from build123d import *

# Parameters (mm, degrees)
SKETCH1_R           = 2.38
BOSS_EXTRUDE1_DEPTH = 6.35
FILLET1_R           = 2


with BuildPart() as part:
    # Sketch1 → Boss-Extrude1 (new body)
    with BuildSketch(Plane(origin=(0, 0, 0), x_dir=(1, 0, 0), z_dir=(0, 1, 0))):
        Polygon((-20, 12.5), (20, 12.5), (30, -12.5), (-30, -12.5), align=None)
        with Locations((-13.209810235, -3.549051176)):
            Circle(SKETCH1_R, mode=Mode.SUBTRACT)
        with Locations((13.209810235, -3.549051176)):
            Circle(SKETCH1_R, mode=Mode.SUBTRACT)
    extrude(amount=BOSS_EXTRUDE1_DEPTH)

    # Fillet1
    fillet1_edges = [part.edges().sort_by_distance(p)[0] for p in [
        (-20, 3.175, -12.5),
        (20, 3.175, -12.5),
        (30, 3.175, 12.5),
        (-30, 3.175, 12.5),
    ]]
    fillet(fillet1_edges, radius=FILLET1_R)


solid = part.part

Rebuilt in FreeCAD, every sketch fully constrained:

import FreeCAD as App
import Part
import Sketcher

V = App.Vector
Q = App.Units.Quantity


def edges_at(feature, points):
    """Names of the edges that pass closest to the given points."""
    edges = feature.Shape.Edges
    near = lambda p: min(range(len(edges)), key=lambda i: edges[i].distToShape(Part.Vertex(*p))[0])
    return sorted({f"Edge{near(p) + 1}" for p in points})


def add_polygon(sketch, points):
    """Adds a closed chain of lines whose ends are joined by coincident constraints."""
    first, n = sketch.GeometryCount, len(points)
    for a, b in zip(points, points[1:] + points[:1]):
        sketch.addGeometry(Part.LineSegment(App.Vector(*a, 0), App.Vector(*b, 0)), False)
    for i in range(n):
        sketch.addConstraint(Sketcher.Constraint("Coincident", first + i, 2, first + (i + 1) % n, 1))

doc = App.newDocument("Part")
params = doc.addObject("Spreadsheet::Sheet", "Params")
for row, (alias, value) in enumerate([
    ("sketch1_diameter", "4.76 mm"),
    ("sketch1_width", "40 mm"),
    ("sketch1_width2", "60 mm"),
    ("pad1_length", "6.35 mm"),
    ("fillet_radius", "2 mm"),
], start=1):
    params.set(f"A{row}", alias)
    params.set(f"B{row}", "=" + value)
    params.setAlias(f"B{row}", alias)

body = doc.addObject("PartDesign::Body", "Body")

# Sketch on XZ plane
sketch1 = body.newObject("Sketcher::SketchObject", "Sketch")
sketch1.AttachmentSupport = (doc.getObject("XZ_Plane"), [""])
sketch1.MapMode = "FlatFace"
add_polygon(sketch1, [(20, -12.5), (-20, -12.5), (-30, 12.5), (30, 12.5)])  # lines 0-3
sketch1.addGeometry(Part.Circle(V(13.2, 3.5, 0), V(0, 0, 1), 2.4), False)  # 4
sketch1.addGeometry(Part.Circle(V(-13.2, 3.5, 0), V(0, 0, 1), 2.4), False)  # 5
sketch1.addConstraint(Sketcher.Constraint("Horizontal", 0))
sketch1.addConstraint(Sketcher.Constraint("Horizontal", 2))
sketch1.addConstraint(Sketcher.Constraint("Equal", 4, 5))
sketch1.addConstraint(Sketcher.Constraint("Symmetric", 4, 3, 5, 3, -2))
sketch1.addConstraint(Sketcher.Constraint("Equal", 1, 3))
sketch1.addConstraint(Sketcher.Constraint("Diameter", 4, Q("4.76 mm")))
sketch1.addConstraint(Sketcher.Constraint("DistanceX", 0, 2, 0, 1, Q("40 mm")))
sketch1.addConstraint(Sketcher.Constraint("DistanceX", 2, 1, 2, 2, Q("60 mm")))
sketch1.addConstraint(Sketcher.Constraint("DistanceX", 0, 2, -1, 1, Q("20 mm")))
sketch1.addConstraint(Sketcher.Constraint("DistanceY", 0, 2, 1, 2, Q("25 mm")))
sketch1.addConstraint(Sketcher.Constraint("DistanceY", 0, 2, -1, 1, Q("12.5 mm")))
sketch1.addConstraint(Sketcher.Constraint("DistanceX", -1, 1, 4, 3, Q("13.20981 mm")))
sketch1.addConstraint(Sketcher.Constraint("DistanceY", -1, 1, 4, 3, Q("3.549051 mm")))
sketch1.setExpression("Constraints[9]", "Params.sketch1_diameter")
sketch1.setExpression("Constraints[10]", "Params.sketch1_width")
sketch1.setExpression("Constraints[11]", "Params.sketch1_width2")
pad1 = body.newObject("PartDesign::Pad", "Pad")
pad1.Profile = sketch1
pad1.setExpression("Length", "Params.pad1_length")
pad1.Reversed = True
doc.recompute()

fillet = body.newObject("PartDesign::Fillet", "Fillet")
fillet.Base = (pad1, edges_at(pad1, [
    (-20, 3.175, -12.5),
    (20, 3.175, -12.5),
    (30, 3.175, 12.5),
    (-30, 3.175, 12.5),
]))
fillet.setExpression("Radius", "Params.fillet_radius")

doc.recompute()
